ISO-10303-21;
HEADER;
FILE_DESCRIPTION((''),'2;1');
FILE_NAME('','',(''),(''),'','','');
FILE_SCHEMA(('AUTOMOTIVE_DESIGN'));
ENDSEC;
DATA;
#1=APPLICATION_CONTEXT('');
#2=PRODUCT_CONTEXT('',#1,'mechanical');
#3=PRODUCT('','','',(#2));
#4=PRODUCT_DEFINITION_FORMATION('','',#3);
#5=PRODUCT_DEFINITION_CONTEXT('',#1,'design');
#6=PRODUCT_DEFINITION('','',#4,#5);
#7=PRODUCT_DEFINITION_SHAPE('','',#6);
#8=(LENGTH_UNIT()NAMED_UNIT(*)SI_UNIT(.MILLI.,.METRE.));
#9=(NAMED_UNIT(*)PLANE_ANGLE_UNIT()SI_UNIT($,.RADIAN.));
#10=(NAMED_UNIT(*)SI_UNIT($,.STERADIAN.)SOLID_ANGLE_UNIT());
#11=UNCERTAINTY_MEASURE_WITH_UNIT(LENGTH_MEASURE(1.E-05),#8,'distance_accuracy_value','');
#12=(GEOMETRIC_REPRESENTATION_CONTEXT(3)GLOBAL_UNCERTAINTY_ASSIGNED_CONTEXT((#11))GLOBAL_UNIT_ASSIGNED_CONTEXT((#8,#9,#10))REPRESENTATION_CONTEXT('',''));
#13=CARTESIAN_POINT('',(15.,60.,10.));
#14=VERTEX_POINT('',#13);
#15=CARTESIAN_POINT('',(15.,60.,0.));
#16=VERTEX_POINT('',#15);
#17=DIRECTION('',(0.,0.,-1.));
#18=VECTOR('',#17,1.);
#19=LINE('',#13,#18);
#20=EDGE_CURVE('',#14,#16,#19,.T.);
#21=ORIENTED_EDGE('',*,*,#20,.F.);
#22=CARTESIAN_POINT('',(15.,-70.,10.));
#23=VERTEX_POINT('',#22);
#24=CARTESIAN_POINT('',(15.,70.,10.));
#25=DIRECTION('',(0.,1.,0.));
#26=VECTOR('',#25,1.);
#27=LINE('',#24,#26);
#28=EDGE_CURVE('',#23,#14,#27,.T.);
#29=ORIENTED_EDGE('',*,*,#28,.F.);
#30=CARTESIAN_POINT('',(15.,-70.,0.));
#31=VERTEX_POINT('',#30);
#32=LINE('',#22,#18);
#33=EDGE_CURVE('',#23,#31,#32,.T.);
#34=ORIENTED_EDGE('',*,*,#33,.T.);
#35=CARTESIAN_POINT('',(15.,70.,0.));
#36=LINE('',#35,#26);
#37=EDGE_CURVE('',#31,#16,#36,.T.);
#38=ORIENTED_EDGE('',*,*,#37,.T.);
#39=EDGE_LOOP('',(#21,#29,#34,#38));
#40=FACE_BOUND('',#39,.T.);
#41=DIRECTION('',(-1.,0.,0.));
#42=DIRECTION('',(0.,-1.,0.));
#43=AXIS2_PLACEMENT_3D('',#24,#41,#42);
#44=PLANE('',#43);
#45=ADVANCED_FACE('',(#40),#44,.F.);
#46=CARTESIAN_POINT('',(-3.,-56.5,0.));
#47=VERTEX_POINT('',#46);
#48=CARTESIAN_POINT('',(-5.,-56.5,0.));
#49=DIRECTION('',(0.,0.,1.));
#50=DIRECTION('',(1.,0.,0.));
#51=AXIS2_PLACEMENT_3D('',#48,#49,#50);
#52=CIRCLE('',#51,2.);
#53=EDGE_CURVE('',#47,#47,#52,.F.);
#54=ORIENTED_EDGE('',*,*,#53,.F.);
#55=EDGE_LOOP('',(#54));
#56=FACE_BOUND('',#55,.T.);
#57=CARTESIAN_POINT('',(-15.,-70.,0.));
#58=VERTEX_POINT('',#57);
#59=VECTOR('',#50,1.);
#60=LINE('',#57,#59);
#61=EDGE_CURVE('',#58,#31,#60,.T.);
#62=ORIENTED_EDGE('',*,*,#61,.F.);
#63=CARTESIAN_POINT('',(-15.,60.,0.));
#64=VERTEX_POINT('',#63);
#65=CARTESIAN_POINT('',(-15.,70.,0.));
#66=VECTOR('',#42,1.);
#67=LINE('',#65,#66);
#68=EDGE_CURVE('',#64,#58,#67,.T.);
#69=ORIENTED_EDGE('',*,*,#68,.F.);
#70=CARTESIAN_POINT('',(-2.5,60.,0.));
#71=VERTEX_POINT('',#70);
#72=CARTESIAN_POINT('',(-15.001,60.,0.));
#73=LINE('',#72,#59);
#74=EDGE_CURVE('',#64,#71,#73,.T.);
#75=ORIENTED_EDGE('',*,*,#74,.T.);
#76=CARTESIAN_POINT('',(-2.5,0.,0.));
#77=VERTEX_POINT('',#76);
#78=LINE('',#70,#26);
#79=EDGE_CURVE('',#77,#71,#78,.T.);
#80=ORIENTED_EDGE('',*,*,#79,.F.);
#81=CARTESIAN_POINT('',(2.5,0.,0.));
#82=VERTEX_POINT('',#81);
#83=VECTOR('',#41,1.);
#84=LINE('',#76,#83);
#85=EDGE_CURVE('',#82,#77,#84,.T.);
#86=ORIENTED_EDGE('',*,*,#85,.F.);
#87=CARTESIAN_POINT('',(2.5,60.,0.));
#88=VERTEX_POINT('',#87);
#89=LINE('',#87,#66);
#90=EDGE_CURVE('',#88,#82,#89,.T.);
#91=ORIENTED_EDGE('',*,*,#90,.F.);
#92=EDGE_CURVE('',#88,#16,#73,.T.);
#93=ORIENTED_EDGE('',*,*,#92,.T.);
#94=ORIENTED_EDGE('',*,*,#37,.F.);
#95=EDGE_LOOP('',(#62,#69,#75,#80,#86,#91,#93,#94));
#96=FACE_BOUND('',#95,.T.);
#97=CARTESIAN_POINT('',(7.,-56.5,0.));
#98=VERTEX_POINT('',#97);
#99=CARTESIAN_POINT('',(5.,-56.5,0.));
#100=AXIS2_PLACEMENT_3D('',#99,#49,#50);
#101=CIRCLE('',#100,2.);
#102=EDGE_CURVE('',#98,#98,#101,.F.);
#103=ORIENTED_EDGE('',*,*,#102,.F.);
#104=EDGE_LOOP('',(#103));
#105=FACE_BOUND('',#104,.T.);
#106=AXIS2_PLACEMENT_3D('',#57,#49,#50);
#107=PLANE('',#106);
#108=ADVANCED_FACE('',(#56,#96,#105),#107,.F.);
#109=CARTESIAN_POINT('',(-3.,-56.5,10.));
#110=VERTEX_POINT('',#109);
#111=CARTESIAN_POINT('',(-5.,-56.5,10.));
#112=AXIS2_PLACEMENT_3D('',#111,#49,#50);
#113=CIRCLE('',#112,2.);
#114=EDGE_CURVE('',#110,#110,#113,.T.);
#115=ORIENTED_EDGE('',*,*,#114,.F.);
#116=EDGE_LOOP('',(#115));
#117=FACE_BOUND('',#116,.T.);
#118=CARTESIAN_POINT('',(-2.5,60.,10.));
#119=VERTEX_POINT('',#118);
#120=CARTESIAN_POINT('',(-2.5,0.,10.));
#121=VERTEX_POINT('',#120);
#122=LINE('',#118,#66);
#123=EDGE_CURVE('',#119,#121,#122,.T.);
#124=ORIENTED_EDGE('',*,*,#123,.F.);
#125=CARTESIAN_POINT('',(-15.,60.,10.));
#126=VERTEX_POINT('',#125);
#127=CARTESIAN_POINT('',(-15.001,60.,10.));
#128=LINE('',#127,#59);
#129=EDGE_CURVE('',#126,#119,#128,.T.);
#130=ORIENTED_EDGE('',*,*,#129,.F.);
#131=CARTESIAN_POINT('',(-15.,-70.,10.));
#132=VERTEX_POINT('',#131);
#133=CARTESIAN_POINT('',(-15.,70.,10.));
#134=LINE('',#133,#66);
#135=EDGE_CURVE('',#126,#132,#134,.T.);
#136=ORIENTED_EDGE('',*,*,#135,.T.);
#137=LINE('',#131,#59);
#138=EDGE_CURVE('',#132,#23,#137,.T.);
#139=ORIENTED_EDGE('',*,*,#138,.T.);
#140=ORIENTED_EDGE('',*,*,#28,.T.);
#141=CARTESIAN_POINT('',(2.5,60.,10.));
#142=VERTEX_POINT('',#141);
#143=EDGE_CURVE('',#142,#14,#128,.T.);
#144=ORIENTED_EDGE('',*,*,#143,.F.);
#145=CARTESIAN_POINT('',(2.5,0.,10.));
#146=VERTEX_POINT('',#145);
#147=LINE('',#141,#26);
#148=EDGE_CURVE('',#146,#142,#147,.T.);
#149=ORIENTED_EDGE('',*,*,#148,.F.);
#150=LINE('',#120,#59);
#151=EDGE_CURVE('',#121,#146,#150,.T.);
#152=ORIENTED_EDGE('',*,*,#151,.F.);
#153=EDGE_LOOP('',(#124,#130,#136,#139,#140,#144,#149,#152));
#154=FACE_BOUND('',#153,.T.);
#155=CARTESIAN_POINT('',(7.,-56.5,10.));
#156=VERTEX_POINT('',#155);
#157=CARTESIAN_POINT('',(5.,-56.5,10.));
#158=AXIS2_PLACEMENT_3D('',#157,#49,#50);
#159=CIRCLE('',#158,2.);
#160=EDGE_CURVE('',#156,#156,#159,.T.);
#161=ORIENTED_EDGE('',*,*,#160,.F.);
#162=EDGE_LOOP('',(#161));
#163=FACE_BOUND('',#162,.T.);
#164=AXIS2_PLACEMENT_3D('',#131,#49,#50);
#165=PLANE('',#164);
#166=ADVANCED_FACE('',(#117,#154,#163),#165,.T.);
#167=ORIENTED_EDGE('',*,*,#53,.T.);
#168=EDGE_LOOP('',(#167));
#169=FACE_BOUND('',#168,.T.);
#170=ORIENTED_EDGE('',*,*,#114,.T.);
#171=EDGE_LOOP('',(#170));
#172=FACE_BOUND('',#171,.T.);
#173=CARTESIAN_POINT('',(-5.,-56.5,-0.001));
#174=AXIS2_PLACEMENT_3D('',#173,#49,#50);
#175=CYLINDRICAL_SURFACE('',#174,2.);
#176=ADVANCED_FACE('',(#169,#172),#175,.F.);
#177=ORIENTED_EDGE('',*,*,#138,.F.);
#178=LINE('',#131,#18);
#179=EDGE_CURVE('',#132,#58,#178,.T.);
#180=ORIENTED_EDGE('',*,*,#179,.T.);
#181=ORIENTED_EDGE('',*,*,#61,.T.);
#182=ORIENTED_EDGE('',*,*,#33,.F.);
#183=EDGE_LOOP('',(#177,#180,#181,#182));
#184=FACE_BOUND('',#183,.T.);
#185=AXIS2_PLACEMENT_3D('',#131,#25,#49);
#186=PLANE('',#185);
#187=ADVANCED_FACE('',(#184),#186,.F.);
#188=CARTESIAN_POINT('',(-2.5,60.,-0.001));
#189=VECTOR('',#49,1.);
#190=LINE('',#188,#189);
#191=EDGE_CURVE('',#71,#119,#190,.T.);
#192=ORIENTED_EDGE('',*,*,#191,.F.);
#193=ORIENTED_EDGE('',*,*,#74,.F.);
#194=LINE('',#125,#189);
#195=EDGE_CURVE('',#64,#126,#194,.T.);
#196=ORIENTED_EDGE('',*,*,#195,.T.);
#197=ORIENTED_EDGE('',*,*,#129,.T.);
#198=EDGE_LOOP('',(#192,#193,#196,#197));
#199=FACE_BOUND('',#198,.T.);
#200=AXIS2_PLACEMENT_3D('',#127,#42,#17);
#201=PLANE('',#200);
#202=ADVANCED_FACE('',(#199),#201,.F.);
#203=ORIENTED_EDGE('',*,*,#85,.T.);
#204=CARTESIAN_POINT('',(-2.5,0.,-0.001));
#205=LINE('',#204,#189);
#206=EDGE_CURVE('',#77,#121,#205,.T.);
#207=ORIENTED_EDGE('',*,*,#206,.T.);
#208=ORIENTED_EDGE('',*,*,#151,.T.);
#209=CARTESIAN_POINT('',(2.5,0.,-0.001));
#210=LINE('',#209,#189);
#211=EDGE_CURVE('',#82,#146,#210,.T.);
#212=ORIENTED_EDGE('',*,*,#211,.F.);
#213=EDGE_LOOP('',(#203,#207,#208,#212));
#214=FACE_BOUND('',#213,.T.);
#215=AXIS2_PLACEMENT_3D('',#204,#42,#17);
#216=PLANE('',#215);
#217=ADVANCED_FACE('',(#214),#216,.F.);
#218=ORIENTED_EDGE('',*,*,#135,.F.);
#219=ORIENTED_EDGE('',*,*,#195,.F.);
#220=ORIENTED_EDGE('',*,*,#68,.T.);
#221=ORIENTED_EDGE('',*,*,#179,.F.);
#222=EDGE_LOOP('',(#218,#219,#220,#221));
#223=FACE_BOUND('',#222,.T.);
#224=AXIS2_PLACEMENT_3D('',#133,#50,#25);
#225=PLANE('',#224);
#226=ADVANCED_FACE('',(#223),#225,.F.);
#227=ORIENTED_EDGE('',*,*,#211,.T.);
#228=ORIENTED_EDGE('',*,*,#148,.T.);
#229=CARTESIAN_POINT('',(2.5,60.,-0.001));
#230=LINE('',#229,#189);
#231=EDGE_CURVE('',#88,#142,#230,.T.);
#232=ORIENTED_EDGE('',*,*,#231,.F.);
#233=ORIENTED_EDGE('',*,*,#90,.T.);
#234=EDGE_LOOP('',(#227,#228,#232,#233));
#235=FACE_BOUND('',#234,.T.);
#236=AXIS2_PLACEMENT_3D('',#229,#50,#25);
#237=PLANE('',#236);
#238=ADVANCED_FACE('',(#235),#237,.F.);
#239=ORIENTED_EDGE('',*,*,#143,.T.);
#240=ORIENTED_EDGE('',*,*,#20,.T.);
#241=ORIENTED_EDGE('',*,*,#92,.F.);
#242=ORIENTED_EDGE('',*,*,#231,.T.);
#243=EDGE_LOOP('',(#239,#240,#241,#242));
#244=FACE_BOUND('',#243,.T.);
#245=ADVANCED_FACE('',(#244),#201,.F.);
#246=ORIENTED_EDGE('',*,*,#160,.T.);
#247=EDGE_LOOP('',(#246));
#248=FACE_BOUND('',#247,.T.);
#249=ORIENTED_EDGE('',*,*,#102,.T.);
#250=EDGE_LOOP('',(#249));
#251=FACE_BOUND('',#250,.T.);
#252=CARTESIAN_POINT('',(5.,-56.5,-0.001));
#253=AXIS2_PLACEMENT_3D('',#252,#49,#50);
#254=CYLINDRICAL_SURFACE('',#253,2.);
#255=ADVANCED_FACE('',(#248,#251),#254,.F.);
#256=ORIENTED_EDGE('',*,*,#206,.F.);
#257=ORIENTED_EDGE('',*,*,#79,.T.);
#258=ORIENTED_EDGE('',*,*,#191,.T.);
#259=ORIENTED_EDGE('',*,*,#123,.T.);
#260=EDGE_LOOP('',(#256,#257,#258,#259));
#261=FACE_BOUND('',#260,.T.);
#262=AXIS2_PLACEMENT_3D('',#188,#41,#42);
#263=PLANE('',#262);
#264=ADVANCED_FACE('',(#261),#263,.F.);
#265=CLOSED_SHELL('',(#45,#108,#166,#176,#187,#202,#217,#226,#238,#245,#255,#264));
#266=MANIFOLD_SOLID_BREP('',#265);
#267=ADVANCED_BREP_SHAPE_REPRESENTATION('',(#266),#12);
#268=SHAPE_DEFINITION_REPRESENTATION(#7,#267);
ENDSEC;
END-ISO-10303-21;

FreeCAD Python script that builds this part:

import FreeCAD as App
import Part
import Sketcher


def add_polygon(sketch, points):
    """Adds a closed chain of lines whose ends are joined by coincident constraints."""
    first, n = sketch.GeometryCount, len(points)
    for a, b in zip(points, points[1:] + points[:1]):
        sketch.addGeometry(Part.LineSegment(App.Vector(*a, 0), App.Vector(*b, 0)), False)
    for i in range(n):
        sketch.addConstraint(Sketcher.Constraint("Coincident", first + i, 2, first + (i + 1) % n, 1))

doc = App.newDocument("Part")
body = doc.addObject("PartDesign::Body", "Body")

# Sketch on XY plane
sketch1 = body.newObject("Sketcher::SketchObject", "Sketch")
sketch1.AttachmentSupport = (doc.getObject("XY_Plane"), [""])
sketch1.MapMode = "FlatFace"
add_polygon(sketch1, [(-15, 70), (-15, -70), (15, -70), (15, 70)])  # lines 0-3
sketch1.addConstraint([
    Sketcher.Constraint("Vertical", 0),
    Sketcher.Constraint("Horizontal", 1),
    Sketcher.Constraint("Vertical", 2),
    Sketcher.Constraint("Horizontal", 3),
    Sketcher.Constraint("Symmetric", 0, 2, 2, 2, -1, 1),
    Sketcher.Constraint("DistanceX", 1, 1, 1, 2, 30.0),
    Sketcher.Constraint("DistanceY", 0, 2, 0, 1, 140.0),
])
pad1 = body.newObject("PartDesign::Pad", "Pad")
pad1.Profile = sketch1
pad1.Length = 10

# Sketch on XY plane
sketch2 = body.newObject("Sketcher::SketchObject", "Sketch001")
sketch2.AttachmentSupport = (doc.getObject("XY_Plane"), [""])
sketch2.MapMode = "FlatFace"
sketch2.AttachmentOffset = App.Placement(App.Vector(0, 0, 10), App.Rotation())
sketch2.addGeometry(Part.Circle(App.Vector(-5, -56.5, 0), App.Vector(0, 0, 1), 2), False)
sketch2.addConstraint([
    Sketcher.Constraint("Diameter", 0, 4.0),
    Sketcher.Constraint("DistanceX", 0, 3, -1, 1, 5.0),
    Sketcher.Constraint("DistanceY", 0, 3, -1, 1, 56.5),
])
pocket1 = body.newObject("PartDesign::Pocket", "Pocket")
pocket1.Profile = sketch2
pocket1.Type = "UpToFirst"

# Sketch on XY plane
sketch3 = body.newObject("Sketcher::SketchObject", "Sketch002")
sketch3.AttachmentSupport = (doc.getObject("XY_Plane"), [""])
sketch3.MapMode = "FlatFace"
sketch3.AttachmentOffset = App.Placement(App.Vector(0, 0, 10), App.Rotation())
sketch3.addGeometry(Part.Circle(App.Vector(5, -56.5, 0), App.Vector(0, 0, 1), 2), False)
sketch3.addConstraint([
    Sketcher.Constraint("Diameter", 0, 4.0),
    Sketcher.Constraint("DistanceX", -1, 1, 0, 3, 5.0),
    Sketcher.Constraint("DistanceY", 0, 3, -1, 1, 56.5),
])
pocket2 = body.newObject("PartDesign::Pocket", "Pocket001")
pocket2.Profile = sketch3
pocket2.Type = "UpToFirst"

# Sketch on YZ plane
sketch4 = body.newObject("Sketcher::SketchObject", "Sketch003")
sketch4.AttachmentSupport = (doc.getObject("YZ_Plane"), [""])
sketch4.MapMode = "FlatFace"
sketch4.AttachmentOffset = App.Placement(App.Vector(0, 0, 15), App.Rotation())
add_polygon(sketch4, [(70, 10), (60, 10), (60, 0), (70, 0)])  # lines 0-3
sketch4.addConstraint([
    Sketcher.Constraint("Horizontal", 0),
    Sketcher.Constraint("Vertical", 1),
    Sketcher.Constraint("Horizontal", 2),
    Sketcher.Constraint("Vertical", 3),
    Sketcher.Constraint("PointOnObject", 1, 2, -1),
    Sketcher.Constraint("Equal", 2, 1),
    Sketcher.Constraint("DistanceX", 0, 2, 0, 1, 10.0),
    Sketcher.Constraint("DistanceX", -1, 1, 0, 2, 60.0),
])
pocket3 = body.newObject("PartDesign::Pocket", "Pocket002")
pocket3.Profile = sketch4
pocket3.Type = "UpToFirst"

# Sketch on XY plane
sketch5 = body.newObject("Sketcher::SketchObject", "Sketch004")
sketch5.AttachmentSupport = (doc.getObject("XY_Plane"), [""])
sketch5.MapMode = "FlatFace"
sketch5.AttachmentOffset = App.Placement(App.Vector(0, 0, 10), App.Rotation())
add_polygon(sketch5, [(-2, 60), (-2, 0), (2, 0), (2, 60)])  # lines 0-3
sketch5.addConstraint([
    Sketcher.Constraint("Vertical", 0),
    Sketcher.Constraint("Horizontal", 1),
    Sketcher.Constraint("Vertical", 2),
    Sketcher.Constraint("Horizontal", 3),
    Sketcher.Constraint("Symmetric", 0, 2, 1, 2, -1, 1),
    Sketcher.Constraint("DistanceX", 1, 1, 1, 2, 5.0),
    Sketcher.Constraint("DistanceY", 0, 2, 0, 1, 60.0),
])
pocket4 = body.newObject("PartDesign::Pocket", "Pocket003")
pocket4.Profile = sketch5
pocket4.Type = "UpToFirst"

doc.recompute()
